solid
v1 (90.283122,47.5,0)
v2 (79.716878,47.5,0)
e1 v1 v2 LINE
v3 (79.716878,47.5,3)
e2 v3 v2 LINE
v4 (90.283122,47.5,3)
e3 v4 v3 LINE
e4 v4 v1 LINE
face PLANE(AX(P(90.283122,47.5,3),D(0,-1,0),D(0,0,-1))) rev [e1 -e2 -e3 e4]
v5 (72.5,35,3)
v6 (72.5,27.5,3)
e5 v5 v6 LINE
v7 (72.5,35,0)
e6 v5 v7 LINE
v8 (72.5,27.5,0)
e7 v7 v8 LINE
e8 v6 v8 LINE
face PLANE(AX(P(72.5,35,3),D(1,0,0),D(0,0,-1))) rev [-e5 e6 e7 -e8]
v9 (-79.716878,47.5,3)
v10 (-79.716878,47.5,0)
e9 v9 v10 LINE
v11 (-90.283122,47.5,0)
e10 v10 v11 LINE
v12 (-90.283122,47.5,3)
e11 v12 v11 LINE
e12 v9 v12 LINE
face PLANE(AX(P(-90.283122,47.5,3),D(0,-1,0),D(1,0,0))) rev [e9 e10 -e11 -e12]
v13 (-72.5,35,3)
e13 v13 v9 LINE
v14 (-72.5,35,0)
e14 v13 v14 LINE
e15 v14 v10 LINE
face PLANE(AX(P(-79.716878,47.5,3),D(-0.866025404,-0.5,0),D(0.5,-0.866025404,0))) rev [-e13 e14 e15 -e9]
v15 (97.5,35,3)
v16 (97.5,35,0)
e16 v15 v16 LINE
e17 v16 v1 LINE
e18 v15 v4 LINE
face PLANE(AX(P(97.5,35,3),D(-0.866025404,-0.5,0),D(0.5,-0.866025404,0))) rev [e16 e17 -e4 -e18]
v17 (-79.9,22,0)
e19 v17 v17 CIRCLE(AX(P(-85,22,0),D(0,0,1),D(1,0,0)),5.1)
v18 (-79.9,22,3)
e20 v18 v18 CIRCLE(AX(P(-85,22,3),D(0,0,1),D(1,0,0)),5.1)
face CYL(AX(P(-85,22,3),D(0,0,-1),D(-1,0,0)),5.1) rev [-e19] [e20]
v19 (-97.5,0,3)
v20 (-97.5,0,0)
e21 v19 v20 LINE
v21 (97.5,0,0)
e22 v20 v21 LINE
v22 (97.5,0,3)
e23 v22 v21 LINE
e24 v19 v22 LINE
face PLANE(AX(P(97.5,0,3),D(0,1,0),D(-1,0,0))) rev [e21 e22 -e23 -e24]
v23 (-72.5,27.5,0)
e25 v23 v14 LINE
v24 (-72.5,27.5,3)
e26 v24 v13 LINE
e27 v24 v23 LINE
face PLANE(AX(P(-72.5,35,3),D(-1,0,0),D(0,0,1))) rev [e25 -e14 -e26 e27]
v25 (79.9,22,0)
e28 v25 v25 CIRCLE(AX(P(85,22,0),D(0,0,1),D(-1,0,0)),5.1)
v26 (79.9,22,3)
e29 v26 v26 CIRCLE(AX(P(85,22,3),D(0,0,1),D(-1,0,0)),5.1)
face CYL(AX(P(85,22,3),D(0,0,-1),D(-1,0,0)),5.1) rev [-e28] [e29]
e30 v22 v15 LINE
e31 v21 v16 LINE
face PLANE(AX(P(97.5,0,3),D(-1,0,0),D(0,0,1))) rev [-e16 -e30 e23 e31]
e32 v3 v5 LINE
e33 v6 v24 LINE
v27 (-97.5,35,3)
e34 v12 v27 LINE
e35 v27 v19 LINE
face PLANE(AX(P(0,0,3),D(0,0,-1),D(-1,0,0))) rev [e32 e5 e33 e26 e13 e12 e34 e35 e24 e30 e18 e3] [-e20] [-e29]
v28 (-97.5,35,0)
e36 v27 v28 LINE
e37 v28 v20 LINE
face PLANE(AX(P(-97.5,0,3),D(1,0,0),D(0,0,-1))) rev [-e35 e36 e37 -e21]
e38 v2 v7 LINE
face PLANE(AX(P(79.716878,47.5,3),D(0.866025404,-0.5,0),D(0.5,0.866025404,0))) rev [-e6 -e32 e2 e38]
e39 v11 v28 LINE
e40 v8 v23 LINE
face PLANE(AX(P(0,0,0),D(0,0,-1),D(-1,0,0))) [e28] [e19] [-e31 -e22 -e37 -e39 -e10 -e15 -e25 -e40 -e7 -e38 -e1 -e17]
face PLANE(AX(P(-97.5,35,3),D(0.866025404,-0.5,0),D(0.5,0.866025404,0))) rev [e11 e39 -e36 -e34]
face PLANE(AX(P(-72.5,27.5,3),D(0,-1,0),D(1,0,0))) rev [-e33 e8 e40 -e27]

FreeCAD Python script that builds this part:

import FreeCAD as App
import Part
import Sketcher
Q = App.Units.Quantity


def add_polygon(sketch, points):
    """Adds a closed chain of lines whose ends are joined by coincident constraints."""
    first, n = sketch.GeometryCount, len(points)
    for a, b in zip(points, points[1:] + points[:1]):
        sketch.addGeometry(Part.LineSegment(App.Vector(*a, 0), App.Vector(*b, 0)), False)
    for i in range(n):
        sketch.addConstraint(Sketcher.Constraint("Coincident", first + i, 2, first + (i + 1) % n, 1))

doc = App.newDocument("Part")
body = doc.addObject("PartDesign::Body", "Body")

sketch1 = doc.addObject("Sketcher::SketchObject", "Sketch")
body.addObject(sketch1)
sketch1.AttachmentSupport = (doc.XY_Plane, [""])
sketch1.MapMode = "FlatFace"
add_polygon(sketch1, [(-98, 0), (98, 0), (98, 35), (90, 48), (80, 48), (72, 35), (72, 28), (-72, 28), (-72, 35), (-80, 48), (-90, 48), (-98, 35)])
sketch1.addGeometry(Part.Circle(App.Vector(85, 22, 0), App.Vector(0, 0, 1), 5), False)
sketch1.addGeometry(Part.Circle(App.Vector(-85, 22, 0), App.Vector(0, 0, 1), 5), False)
sketch1.addConstraint([
    Sketcher.Constraint("Horizontal", 0),
    Sketcher.Constraint("Vertical", 1),
    Sketcher.Constraint("Horizontal", 3),
    Sketcher.Constraint("Vertical", 5),
    Sketcher.Constraint("Horizontal", 6),
    Sketcher.Constraint("Vertical", 7),
    Sketcher.Constraint("Horizontal", 9),
    Sketcher.Constraint("Vertical", 11),
    Sketcher.Constraint("Equal", 12, 13),
    Sketcher.Constraint("Symmetric", 0, 2, 11, 2, -1, 1),
    Sketcher.Constraint("Symmetric", 12, 3, 13, 3, -2),
    Sketcher.Constraint("Symmetric", 4, 2, 7, 2, -2),
    Sketcher.Constraint("Symmetric", 3, 2, 8, 2, -2),
    Sketcher.Constraint("Parallel", 2, 8),
    Sketcher.Constraint("Parallel", 4, 10),
    Sketcher.Constraint("Horizontal", 1, 2, 4, 2),
    Sketcher.Constraint("Horizontal", 7, 2, 10, 2),
    Sketcher.Constraint("Diameter", 12, 10.2),
    Sketcher.Constraint("DistanceX", 0, 1, 0, 2, 195.0),
    Sketcher.Constraint("DistanceX", 6, 2, 6, 1, 145.0),
    Sketcher.Constraint("DistanceY", 1, 1, 1, 2, 35.0),
    Sketcher.Constraint("Angle", 2, Q("120 deg")),
    Sketcher.Constraint("DistanceY", 5, 2, 5, 1, 7.5),
    Sketcher.Constraint("DistanceX", -1, 1, 12, 3, 85.0),
    Sketcher.Constraint("DistanceY", -1, 1, 12, 3, 22.0),
    Sketcher.Constraint("DistanceY", 5, 2, 3, 2, 20.0),
])
pad1 = doc.addObject("PartDesign::Pad", "Pad")
body.addObject(pad1)
pad1.Profile = sketch1
pad1.Length = 3

doc.recompute()
